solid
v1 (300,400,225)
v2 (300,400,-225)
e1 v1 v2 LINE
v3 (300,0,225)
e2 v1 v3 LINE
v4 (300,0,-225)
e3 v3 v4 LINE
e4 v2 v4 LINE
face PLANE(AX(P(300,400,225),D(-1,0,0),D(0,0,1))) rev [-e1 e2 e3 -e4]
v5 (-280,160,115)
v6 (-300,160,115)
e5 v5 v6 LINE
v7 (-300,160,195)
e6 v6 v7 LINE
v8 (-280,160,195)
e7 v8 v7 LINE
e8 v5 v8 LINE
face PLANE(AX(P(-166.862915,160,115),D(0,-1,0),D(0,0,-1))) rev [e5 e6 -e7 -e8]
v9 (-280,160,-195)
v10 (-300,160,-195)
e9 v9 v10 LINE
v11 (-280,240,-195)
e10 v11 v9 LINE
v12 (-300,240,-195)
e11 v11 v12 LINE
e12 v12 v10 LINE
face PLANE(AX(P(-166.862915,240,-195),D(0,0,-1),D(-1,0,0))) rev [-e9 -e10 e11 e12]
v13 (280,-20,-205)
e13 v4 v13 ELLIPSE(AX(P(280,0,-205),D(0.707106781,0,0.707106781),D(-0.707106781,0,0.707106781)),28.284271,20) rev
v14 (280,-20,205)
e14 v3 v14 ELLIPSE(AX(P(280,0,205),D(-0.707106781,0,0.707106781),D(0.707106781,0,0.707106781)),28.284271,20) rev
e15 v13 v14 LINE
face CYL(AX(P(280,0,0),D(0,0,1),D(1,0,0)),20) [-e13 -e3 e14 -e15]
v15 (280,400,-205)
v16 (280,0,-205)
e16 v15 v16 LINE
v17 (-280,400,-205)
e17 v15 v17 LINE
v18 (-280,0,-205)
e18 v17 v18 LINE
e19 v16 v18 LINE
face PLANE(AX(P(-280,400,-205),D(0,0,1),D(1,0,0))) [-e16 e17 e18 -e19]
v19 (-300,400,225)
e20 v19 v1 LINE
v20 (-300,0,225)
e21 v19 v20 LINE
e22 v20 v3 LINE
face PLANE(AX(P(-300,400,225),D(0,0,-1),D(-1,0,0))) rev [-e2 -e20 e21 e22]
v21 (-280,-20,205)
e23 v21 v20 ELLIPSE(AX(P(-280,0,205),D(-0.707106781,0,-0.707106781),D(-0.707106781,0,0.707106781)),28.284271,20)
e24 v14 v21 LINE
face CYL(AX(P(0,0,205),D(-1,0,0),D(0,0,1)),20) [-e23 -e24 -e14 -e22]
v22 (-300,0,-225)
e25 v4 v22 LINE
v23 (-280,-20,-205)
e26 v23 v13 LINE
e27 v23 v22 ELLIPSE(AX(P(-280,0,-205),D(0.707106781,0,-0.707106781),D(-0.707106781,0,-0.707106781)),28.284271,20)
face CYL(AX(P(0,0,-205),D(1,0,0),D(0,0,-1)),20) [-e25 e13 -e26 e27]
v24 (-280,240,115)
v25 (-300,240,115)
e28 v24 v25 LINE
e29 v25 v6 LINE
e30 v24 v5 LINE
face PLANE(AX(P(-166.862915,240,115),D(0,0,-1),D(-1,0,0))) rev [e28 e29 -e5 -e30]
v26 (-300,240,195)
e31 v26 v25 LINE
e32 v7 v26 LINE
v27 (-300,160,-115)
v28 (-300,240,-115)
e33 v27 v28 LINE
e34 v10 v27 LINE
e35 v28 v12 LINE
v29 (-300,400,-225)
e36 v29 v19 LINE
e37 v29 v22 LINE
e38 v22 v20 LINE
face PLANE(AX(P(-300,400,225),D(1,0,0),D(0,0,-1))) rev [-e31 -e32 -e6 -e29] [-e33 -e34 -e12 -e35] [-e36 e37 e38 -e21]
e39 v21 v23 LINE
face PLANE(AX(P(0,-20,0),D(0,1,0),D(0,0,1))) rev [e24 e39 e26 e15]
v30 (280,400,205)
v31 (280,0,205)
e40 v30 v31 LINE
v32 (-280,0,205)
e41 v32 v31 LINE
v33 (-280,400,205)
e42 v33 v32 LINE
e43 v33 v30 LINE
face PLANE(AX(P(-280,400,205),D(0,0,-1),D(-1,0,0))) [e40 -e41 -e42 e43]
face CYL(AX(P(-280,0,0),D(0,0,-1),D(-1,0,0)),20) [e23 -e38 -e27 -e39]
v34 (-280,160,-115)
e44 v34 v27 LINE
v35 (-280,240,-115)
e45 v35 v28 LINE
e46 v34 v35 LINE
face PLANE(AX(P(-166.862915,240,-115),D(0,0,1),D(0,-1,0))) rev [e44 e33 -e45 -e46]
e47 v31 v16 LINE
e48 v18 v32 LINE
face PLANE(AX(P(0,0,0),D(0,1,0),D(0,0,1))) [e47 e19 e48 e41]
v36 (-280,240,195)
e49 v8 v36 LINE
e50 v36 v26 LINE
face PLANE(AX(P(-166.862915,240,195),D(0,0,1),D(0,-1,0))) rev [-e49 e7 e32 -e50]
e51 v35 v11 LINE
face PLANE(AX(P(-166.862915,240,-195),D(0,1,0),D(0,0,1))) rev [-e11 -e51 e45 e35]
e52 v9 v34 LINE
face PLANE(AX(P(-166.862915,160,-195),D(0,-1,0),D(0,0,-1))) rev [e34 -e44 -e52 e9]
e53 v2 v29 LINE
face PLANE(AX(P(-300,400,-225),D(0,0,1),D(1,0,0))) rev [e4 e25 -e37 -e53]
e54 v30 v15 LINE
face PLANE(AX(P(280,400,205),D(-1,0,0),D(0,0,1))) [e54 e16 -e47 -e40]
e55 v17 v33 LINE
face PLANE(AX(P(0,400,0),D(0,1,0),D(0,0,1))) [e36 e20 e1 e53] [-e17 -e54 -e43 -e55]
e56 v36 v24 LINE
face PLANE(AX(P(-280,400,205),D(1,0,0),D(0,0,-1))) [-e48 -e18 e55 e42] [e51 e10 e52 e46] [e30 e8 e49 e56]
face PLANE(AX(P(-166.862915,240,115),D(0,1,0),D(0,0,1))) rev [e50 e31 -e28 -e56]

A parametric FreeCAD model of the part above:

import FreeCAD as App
import Part
import Sketcher

V = App.Vector


def edges_at(feature, points):
    """Names of the edges that pass closest to the given points."""
    edges = feature.Shape.Edges
    near = lambda p: min(range(len(edges)), key=lambda i: edges[i].distToShape(Part.Vertex(*p))[0])
    return sorted({f"Edge{near(p) + 1}" for p in points})

doc = App.newDocument("Part")
body = doc.addObject("PartDesign::Body", "Body")

sketch1 = body.newObject("Sketcher::SketchObject", "Sketch")
sketch1.AttachmentSupport = (doc.getObject("XZ_Plane"), [""])
sketch1.MapMode = "FlatFace"
sketch1.addGeometry(Part.LineSegment(V(-300, -225, 0), V(-300, 225, 0)), False)
sketch1.addGeometry(Part.LineSegment(V(-300, 225, 0), V(300, 225, 0)), False)
sketch1.addGeometry(Part.LineSegment(V(300, 225, 0), V(300, -225, 0)), False)
sketch1.addGeometry(Part.LineSegment(V(300, -225, 0), V(-300, -225, 0)), False)
sketch1.addGeometry(Part.LineSegment(V(280, 205, 0), V(-280, 205, 0)), False)
sketch1.addGeometry(Part.LineSegment(V(-280, 205, 0), V(-280, -205, 0)), False)
sketch1.addGeometry(Part.LineSegment(V(-280, -205, 0), V(280, -205, 0)), False)
sketch1.addGeometry(Part.LineSegment(V(280, -205, 0), V(280, 205, 0)), False)
sketch1.addConstraint(Sketcher.Constraint("Coincident", 0, 2, 1, 1))
sketch1.addConstraint(Sketcher.Constraint("Coincident", 1, 2, 2, 1))
sketch1.addConstraint(Sketcher.Constraint("Coincident", 2, 2, 3, 1))
sketch1.addConstraint(Sketcher.Constraint("Coincident", 3, 2, 0, 1))
sketch1.addConstraint(Sketcher.Constraint("Coincident", 4, 2, 5, 1))
sketch1.addConstraint(Sketcher.Constraint("Coincident", 5, 2, 6, 1))
sketch1.addConstraint(Sketcher.Constraint("Coincident", 6, 2, 7, 1))
sketch1.addConstraint(Sketcher.Constraint("Coincident", 7, 2, 4, 1))
sketch1.addConstraint(Sketcher.Constraint("Vertical", 0))
sketch1.addConstraint(Sketcher.Constraint("Horizontal", 1))
sketch1.addConstraint(Sketcher.Constraint("Vertical", 2))
sketch1.addConstraint(Sketcher.Constraint("Horizontal", 3))
sketch1.addConstraint(Sketcher.Constraint("Horizontal", 4))
sketch1.addConstraint(Sketcher.Constraint("Vertical", 5))
sketch1.addConstraint(Sketcher.Constraint("Horizontal", 6))
sketch1.addConstraint(Sketcher.Constraint("Vertical", 7))
sketch1.addConstraint(Sketcher.Constraint("Symmetric", 0, 2, 2, 2, -1, 1))
sketch1.addConstraint(Sketcher.Constraint("Symmetric", 4, 2, 6, 2, -1, 1))
sketch1.addConstraint(Sketcher.Constraint("DistanceX", 1, 1, 1, 2, 600.0))
sketch1.addConstraint(Sketcher.Constraint("DistanceX", 4, 2, 4, 1, 560.0))
sketch1.addConstraint(Sketcher.Constraint("DistanceY", 0, 1, 0, 2, 450.0))
sketch1.addConstraint(Sketcher.Constraint("DistanceY", 5, 2, 5, 1, 410.0))
pad1 = body.newObject("PartDesign::Pad", "Pad")
pad1.Profile = sketch1
pad1.Length = 400
pad1.Reversed = True

sketch2 = body.newObject("Sketcher::SketchObject", "Sketch001")
sketch2.AttachmentSupport = (doc.getObject("XZ_Plane"), [""])
sketch2.MapMode = "FlatFace"
sketch2.addGeometry(Part.LineSegment(V(-300, 225, 0), V(-300, -225, 0)), False)
sketch2.addGeometry(Part.LineSegment(V(-300, -225, 0), V(300, -225, 0)), False)
sketch2.addGeometry(Part.LineSegment(V(300, -225, 0), V(300, 225, 0)), False)
sketch2.addGeometry(Part.LineSegment(V(300, 225, 0), V(-300, 225, 0)), False)
sketch2.addConstraint(Sketcher.Constraint("Coincident", 0, 2, 1, 1))
sketch2.addConstraint(Sketcher.Constraint("Coincident", 1, 2, 2, 1))
sketch2.addConstraint(Sketcher.Constraint("Coincident", 2, 2, 3, 1))
sketch2.addConstraint(Sketcher.Constraint("Coincident", 3, 2, 0, 1))
sketch2.addConstraint(Sketcher.Constraint("Vertical", 0))
sketch2.addConstraint(Sketcher.Constraint("Horizontal", 1))
sketch2.addConstraint(Sketcher.Constraint("Vertical", 2))
sketch2.addConstraint(Sketcher.Constraint("Horizontal", 3))
sketch2.addConstraint(Sketcher.Constraint("Symmetric", 0, 2, 2, 2, -1, 1))
sketch2.addConstraint(Sketcher.Constraint("DistanceX", 1, 1, 1, 2, 600.0))
sketch2.addConstraint(Sketcher.Constraint("DistanceY", 0, 2, 0, 1, 450.0))
pad2 = body.newObject("PartDesign::Pad", "Pad001")
pad2.Profile = sketch2
pad2.Length = 20
doc.recompute()

fillet = body.newObject("PartDesign::Fillet", "Fillet")
fillet.Base = (pad2, edges_at(pad2, [
    (300, -20, 0),
    (0, -20, 225),
    (-300, -20, 0),
    (0, -20, -225),
]))
fillet.Radius = 20

sketch3 = body.newObject("Sketcher::SketchObject", "Sketch002")
sketch3.AttachmentSupport = (doc.getObject("YZ_Plane"), [""])
sketch3.MapMode = "FlatFace"
sketch3.AttachmentOffset = App.Placement(V(0, 0, -300), App.Rotation())
sketch3.addGeometry(Part.LineSegment(V(240, 115, 0), V(160, 115, 0)), False)
sketch3.addGeometry(Part.LineSegment(V(160, 115, 0), V(160, 195, 0)), False)
sketch3.addGeometry(Part.LineSegment(V(160, 195, 0), V(240, 195, 0)), False)
sketch3.addGeometry(Part.LineSegment(V(240, 195, 0), V(240, 115, 0)), False)
sketch3.addGeometry(Part.LineSegment(V(240, -195, 0), V(160, -195, 0)), False)
sketch3.addGeometry(Part.LineSegment(V(160, -195, 0), V(160, -115, 0)), False)
sketch3.addGeometry(Part.LineSegment(V(160, -115, 0), V(240, -115, 0)), False)
sketch3.addGeometry(Part.LineSegment(V(240, -115, 0), V(240, -195, 0)), False)
sketch3.addConstraint(Sketcher.Constraint("Coincident", 0, 2, 1, 1))
sketch3.addConstraint(Sketcher.Constraint("Coincident", 1, 2, 2, 1))
sketch3.addConstraint(Sketcher.Constraint("Coincident", 2, 2, 3, 1))
sketch3.addConstraint(Sketcher.Constraint("Coincident", 3, 2, 0, 1))
sketch3.addConstraint(Sketcher.Constraint("Coincident", 4, 2, 5, 1))
sketch3.addConstraint(Sketcher.Constraint("Coincident", 5, 2, 6, 1))
sketch3.addConstraint(Sketcher.Constraint("Coincident", 6, 2, 7, 1))
sketch3.addConstraint(Sketcher.Constraint("Coincident", 7, 2, 4, 1))
sketch3.addConstraint(Sketcher.Constraint("Horizontal", 0))
sketch3.addConstraint(Sketcher.Constraint("Vertical", 1))
sketch3.addConstraint(Sketcher.Constraint("Horizontal", 2))
sketch3.addConstraint(Sketcher.Constraint("Vertical", 3))
sketch3.addConstraint(Sketcher.Constraint("Horizontal", 4))
sketch3.addConstraint(Sketcher.Constraint("Vertical", 5))
sketch3.addConstraint(Sketcher.Constraint("Horizontal", 6))
sketch3.addConstraint(Sketcher.Constraint("Vertical", 7))
sketch3.addConstraint(Sketcher.Constraint("Symmetric", 1, 2, 4, 2, -1))
sketch3.addConstraint(Sketcher.Constraint("Symmetric", 3, 2, 6, 2, -1))
sketch3.addConstraint(Sketcher.Constraint("Equal", 6, 1))
sketch3.addConstraint(Sketcher.Constraint("DistanceX", 0, 2, 0, 1, 80.0))
sketch3.addConstraint(Sketcher.Constraint("DistanceX", -1, 1, 0, 2, 160.0))
sketch3.addConstraint(Sketcher.Constraint("DistanceY", -1, 1, 0, 2, 115.0))
pocket1 = body.newObject("PartDesign::Pocket", "Pocket")
pocket1.Profile = sketch3
pocket1.Length = 20
pocket1.Reversed = True

doc.recompute()
